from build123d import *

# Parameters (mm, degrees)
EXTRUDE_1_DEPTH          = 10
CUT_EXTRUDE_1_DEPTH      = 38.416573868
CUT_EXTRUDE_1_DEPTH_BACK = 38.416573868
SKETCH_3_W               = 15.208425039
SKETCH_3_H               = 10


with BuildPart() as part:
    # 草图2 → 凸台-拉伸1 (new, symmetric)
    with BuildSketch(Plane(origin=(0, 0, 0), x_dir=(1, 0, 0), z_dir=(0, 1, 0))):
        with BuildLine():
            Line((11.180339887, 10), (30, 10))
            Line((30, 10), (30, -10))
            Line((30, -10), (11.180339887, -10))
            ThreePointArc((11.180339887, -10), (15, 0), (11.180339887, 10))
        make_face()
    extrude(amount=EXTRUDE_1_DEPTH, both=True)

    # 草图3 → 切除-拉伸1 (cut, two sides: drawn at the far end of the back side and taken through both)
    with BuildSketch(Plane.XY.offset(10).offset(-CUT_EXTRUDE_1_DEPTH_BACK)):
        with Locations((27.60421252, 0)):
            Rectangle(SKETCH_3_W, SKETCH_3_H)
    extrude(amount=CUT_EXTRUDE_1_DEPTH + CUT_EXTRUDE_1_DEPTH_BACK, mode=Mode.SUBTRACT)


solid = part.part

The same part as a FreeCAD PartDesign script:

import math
import FreeCAD as App
import Part
import Sketcher
from FreeCAD import Vector


def add_polygon(sketch, points):
    """Adds a closed chain of lines whose ends are joined by coincident constraints."""
    first, n = sketch.GeometryCount, len(points)
    for a, b in zip(points, points[1:] + points[:1]):
        sketch.addGeometry(Part.LineSegment(App.Vector(*a, 0), App.Vector(*b, 0)), False)
    for i in range(n):
        sketch.addConstraint(Sketcher.Constraint("Coincident", first + i, 2, first + (i + 1) % n, 1))

doc = App.newDocument("Part")
body = doc.addObject("PartDesign::Body", "Body")

# Sketch on XZ plane
sketch1 = body.newObject("Sketcher::SketchObject", "Sketch")
sketch1.AttachmentSupport = (doc.getObject("XZ_Plane"), [""])
sketch1.MapMode = "FlatFace"
sketch1.addGeometry(Part.LineSegment(Vector(30, -10, 0), Vector(11, -10, 0)), False)
sketch1.addGeometry(Part.ArcOfCircle(Part.Circle(Vector(0, 0, 0), Vector(0, 0, 1), 15), math.radians(-42), math.radians(42)), False)
sketch1.addGeometry(Part.LineSegment(Vector(11, 10, 0), Vector(30, 10, 0)), False)
sketch1.addGeometry(Part.LineSegment(Vector(30, 10, 0), Vector(30, -10, 0)), False)
sketch1.addConstraint(Sketcher.Constraint("Coincident", 0, 2, 1, 1))
sketch1.addConstraint(Sketcher.Constraint("Coincident", 1, 2, 2, 1))
sketch1.addConstraint(Sketcher.Constraint("Coincident", 2, 2, 3, 1))
sketch1.addConstraint(Sketcher.Constraint("Coincident", 3, 2, 0, 1))
sketch1.addConstraint(Sketcher.Constraint("Horizontal", 0))
sketch1.addConstraint(Sketcher.Constraint("Horizontal", 2))
sketch1.addConstraint(Sketcher.Constraint("Vertical", 3))
sketch1.addConstraint(Sketcher.Constraint("Coincident", 1, 3, -1, 1))
sketch1.addConstraint(Sketcher.Constraint("Vertical", 0, 2, 1, 2))
sketch1.addConstraint(Sketcher.Constraint("Radius", 1, 15.0))
sketch1.addConstraint(Sketcher.Constraint("DistanceY", 3, 2, 3, 1, 20.0))
sketch1.addConstraint(Sketcher.Constraint("DistanceX", -1, 1, 2, 2, 30.0))
pad1 = body.newObject("PartDesign::Pad", "Pad")
pad1.Profile = sketch1
pad1.Length = 20
pad1.Midplane = True

# Sketch on XY plane
sketch2 = body.newObject("Sketcher::SketchObject", "Sketch001")
sketch2.AttachmentSupport = (doc.getObject("XY_Plane"), [""])
sketch2.MapMode = "FlatFace"
sketch2.AttachmentOffset = App.Placement(Vector(0, 0, 10), App.Rotation())
add_polygon(sketch2, [(20, 5), (20, -5), (35, -5), (35, 5)])  # lines 0-3
sketch2.addConstraint(Sketcher.Constraint("Vertical", 0))
sketch2.addConstraint(Sketcher.Constraint("Horizontal", 1))
sketch2.addConstraint(Sketcher.Constraint("Vertical", 2))
sketch2.addConstraint(Sketcher.Constraint("Horizontal", 3))
sketch2.addConstraint(Sketcher.Constraint("DistanceY", 0, 2, 0, 1, 10.0))
sketch2.addConstraint(Sketcher.Constraint("DistanceX", -1, 1, 0, 2, 20.0))
sketch2.addConstraint(Sketcher.Constraint("DistanceY", 0, 2, -1, 1, 5.0))
sketch2.addConstraint(Sketcher.Constraint("DistanceX", 1, 1, 1, 2, 15.208425))
pocket1 = body.newObject("PartDesign::Pocket", "Pocket")
pocket1.Profile = sketch2
pocket1.Type = "ThroughAll"
pocket1.Midplane = True

doc.recompute()
